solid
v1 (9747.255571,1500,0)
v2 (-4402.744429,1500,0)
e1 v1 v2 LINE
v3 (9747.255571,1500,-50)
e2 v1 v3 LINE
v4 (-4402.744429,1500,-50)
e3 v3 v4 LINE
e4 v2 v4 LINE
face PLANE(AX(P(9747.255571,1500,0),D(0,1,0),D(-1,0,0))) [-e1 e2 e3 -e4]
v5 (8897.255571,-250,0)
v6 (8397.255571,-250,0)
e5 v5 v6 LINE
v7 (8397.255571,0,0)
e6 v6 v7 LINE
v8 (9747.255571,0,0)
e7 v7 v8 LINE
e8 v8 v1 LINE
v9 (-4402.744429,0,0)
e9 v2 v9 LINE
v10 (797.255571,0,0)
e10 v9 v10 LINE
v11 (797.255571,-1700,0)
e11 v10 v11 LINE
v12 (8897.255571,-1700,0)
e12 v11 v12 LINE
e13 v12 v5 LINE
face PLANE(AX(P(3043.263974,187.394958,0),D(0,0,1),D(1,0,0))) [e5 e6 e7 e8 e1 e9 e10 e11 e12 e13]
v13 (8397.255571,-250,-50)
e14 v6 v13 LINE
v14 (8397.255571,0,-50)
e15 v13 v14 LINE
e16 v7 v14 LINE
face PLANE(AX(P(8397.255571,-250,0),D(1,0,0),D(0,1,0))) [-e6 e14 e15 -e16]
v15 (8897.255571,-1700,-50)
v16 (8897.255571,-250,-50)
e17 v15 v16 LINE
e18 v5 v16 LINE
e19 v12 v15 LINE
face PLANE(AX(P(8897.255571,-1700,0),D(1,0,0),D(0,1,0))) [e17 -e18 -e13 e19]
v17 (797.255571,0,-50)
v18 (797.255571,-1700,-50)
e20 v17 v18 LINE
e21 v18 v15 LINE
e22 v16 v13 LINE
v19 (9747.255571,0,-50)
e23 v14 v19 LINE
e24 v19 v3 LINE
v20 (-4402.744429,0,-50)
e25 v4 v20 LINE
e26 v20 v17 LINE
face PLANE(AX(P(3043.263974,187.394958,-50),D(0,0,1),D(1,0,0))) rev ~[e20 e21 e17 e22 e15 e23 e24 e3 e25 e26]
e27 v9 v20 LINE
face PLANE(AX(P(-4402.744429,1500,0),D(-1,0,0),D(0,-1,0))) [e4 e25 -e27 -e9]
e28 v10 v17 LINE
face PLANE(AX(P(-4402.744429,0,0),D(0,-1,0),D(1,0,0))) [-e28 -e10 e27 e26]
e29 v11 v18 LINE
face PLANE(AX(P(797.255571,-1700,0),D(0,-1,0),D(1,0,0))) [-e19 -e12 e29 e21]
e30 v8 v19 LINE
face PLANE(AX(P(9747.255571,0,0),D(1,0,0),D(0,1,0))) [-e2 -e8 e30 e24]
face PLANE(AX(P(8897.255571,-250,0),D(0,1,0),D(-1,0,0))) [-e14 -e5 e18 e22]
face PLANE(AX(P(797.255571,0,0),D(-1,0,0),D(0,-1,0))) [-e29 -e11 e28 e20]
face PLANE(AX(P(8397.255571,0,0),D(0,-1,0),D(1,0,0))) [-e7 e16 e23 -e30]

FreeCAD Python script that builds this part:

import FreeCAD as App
import Part
import Sketcher

doc = App.newDocument("Part")
body = doc.addObject("PartDesign::Body", "Body")

# Sketch on XY plane
sketch1 = doc.addObject("Sketcher::SketchObject", "Sketch")
body.addObject(sketch1)
sketch1.AttachmentSupport = (doc.XY_Plane, [""])
sketch1.MapMode = "FlatFace"
sketch1.addGeometry([
    Part.LineSegment(App.Vector(-4403, 1500, 0), App.Vector(-4403, 0, 0)),  # 0
    Part.LineSegment(App.Vector(-4403, 0, 0), App.Vector(797, 0, 0)),  # 1
    Part.LineSegment(App.Vector(797, 0, 0), App.Vector(797, -1700, 0)),  # 2
    Part.LineSegment(App.Vector(797, -1700, 0), App.Vector(8897, -1700, 0)),  # 3
    Part.LineSegment(App.Vector(8897, -1700, 0), App.Vector(8897, -250, 0)),  # 4
    Part.LineSegment(App.Vector(8897, -250, 0), App.Vector(8397, -250, 0)),  # 5
    Part.LineSegment(App.Vector(8397, -250, 0), App.Vector(8397, 0, 0)),  # 6
    Part.LineSegment(App.Vector(8397, 0, 0), App.Vector(9747, 0, 0)),  # 7
    Part.LineSegment(App.Vector(9747, 0, 0), App.Vector(9747, 1500, 0)),  # 8
    Part.LineSegment(App.Vector(9747, 1500, 0), App.Vector(-4403, 1500, 0)),  # 9
], False)
sketch1.addConstraint([
    Sketcher.Constraint("Coincident", 0, 2, 1, 1),
    Sketcher.Constraint("Coincident", 1, 2, 2, 1),
    Sketcher.Constraint("Coincident", 2, 2, 3, 1),
    Sketcher.Constraint("Coincident", 3, 2, 4, 1),
    Sketcher.Constraint("Coincident", 4, 2, 5, 1),
    Sketcher.Constraint("Coincident", 5, 2, 6, 1),
    Sketcher.Constraint("Coincident", 6, 2, 7, 1),
    Sketcher.Constraint("Coincident", 7, 2, 8, 1),
    Sketcher.Constraint("Coincident", 8, 2, 9, 1),
    Sketcher.Constraint("Coincident", 9, 2, 0, 1),
    Sketcher.Constraint("Vertical", 0),
    Sketcher.Constraint("Horizontal", 1),
    Sketcher.Constraint("Vertical", 2),
    Sketcher.Constraint("Horizontal", 3),
    Sketcher.Constraint("Vertical", 4),
    Sketcher.Constraint("Horizontal", 5),
    Sketcher.Constraint("Vertical", 6),
    Sketcher.Constraint("Horizontal", 7),
    Sketcher.Constraint("Vertical", 8),
    Sketcher.Constraint("Horizontal", 9),
    Sketcher.Constraint("PointOnObject", 0, 2, -1),
    Sketcher.Constraint("PointOnObject", 6, 2, -1),
    Sketcher.Constraint("DistanceX", 1, 1, 1, 2, 5200.0),
    Sketcher.Constraint("DistanceX", 3, 1, 3, 2, 8100.0),
    Sketcher.Constraint("DistanceX", 5, 2, 5, 1, 500.0),
    Sketcher.Constraint("DistanceX", 7, 1, 7, 2, 1350.0),
    Sketcher.Constraint("DistanceY", 0, 2, 0, 1, 1500.0),
    Sketcher.Constraint("DistanceY", 2, 2, 2, 1, 1700.0),
    Sketcher.Constraint("DistanceY", 4, 1, 4, 2, 1450.0),
    Sketcher.Constraint("DistanceX", 0, 2, -1, 1, 4402.744429),
])
pad1 = doc.addObject("PartDesign::Pad", "Pad")
body.addObject(pad1)
pad1.Profile = sketch1
pad1.Length = 50
pad1.Reversed = True

doc.recompute()
